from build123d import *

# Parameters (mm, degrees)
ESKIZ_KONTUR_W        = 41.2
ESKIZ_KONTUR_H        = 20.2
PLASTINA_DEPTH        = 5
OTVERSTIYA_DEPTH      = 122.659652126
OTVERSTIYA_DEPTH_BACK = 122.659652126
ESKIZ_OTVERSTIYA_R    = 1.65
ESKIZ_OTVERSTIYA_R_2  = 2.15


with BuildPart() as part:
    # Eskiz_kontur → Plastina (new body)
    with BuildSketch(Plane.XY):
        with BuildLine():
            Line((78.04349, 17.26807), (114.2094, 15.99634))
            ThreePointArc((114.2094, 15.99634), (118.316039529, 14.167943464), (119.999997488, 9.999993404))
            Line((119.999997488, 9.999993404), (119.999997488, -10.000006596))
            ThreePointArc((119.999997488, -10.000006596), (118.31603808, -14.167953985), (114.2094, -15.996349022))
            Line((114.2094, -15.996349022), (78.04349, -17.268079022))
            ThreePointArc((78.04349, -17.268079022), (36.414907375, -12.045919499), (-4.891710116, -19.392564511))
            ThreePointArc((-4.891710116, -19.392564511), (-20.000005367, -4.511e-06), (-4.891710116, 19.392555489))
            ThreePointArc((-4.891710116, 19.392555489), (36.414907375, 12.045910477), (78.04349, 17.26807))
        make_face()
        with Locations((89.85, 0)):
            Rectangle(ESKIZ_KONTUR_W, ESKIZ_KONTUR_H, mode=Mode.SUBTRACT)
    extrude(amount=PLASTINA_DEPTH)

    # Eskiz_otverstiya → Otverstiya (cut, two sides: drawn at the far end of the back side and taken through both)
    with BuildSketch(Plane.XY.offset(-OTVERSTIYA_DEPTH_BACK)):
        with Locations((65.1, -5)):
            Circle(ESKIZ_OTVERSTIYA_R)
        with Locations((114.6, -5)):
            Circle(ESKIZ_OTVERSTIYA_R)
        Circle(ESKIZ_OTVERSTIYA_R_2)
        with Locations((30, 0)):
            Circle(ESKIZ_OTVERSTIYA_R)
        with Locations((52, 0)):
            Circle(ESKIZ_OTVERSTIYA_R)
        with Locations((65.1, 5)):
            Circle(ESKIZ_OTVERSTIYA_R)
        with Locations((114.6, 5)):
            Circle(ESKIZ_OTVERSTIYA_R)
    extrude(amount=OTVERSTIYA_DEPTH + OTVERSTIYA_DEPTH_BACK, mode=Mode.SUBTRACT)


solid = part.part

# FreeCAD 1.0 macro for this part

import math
import FreeCAD as App
import Part
import Sketcher

doc = App.newDocument("Part")
body = doc.addObject("PartDesign::Body", "Body")

sketch1 = body.newObject("Sketcher::SketchObject", "Sketch")
sketch1.AttachmentSupport = (doc.getObject("XY_Plane"), [""])
sketch1.MapMode = "FlatFace"
sketch1.addGeometry([
    Part.LineSegment(App.Vector(114, 16, 0), App.Vector(78, 17, 0)),
    Part.ArcOfCircle(Part.Circle(App.Vector(40, 152, 0), App.Vector(0, 0, 1), 140), math.radians(-109), math.radians(-74)),
    Part.ArcOfCircle(Part.Circle(App.Vector(0, 0, 0), App.Vector(0, 0, 1), 20), math.radians(104), math.radians(256)),
    Part.ArcOfCircle(Part.Circle(App.Vector(40, -152, 0), App.Vector(0, 0, 1), 140), math.radians(74), math.radians(109)),
    Part.LineSegment(App.Vector(78, -17, 0), App.Vector(114, -16, 0)),
    Part.ArcOfCircle(Part.Circle(App.Vector(114, -10, 0), App.Vector(0, 0, 1), 6), math.radians(-88), math.radians(0)),
    Part.LineSegment(App.Vector(120, -10, 0), App.Vector(120, 10, 0)),
    Part.ArcOfCircle(Part.Circle(App.Vector(114, 10, 0), App.Vector(0, 0, 1), 6), math.radians(0), math.radians(88)),
    Part.LineSegment(App.Vector(69, -10, 0), App.Vector(69, 10, 0)),
    Part.LineSegment(App.Vector(69, 10, 0), App.Vector(110, 10, 0)),
    Part.LineSegment(App.Vector(110, 10, 0), App.Vector(110, -10, 0)),
    Part.LineSegment(App.Vector(110, -10, 0), App.Vector(69, -10, 0)),
], False)
sketch1.addConstraint([
    Sketcher.Constraint("Coincident", 0, 2, 1, 2),
    Sketcher.Constraint("Coincident", 1, 1, 2, 1),
    Sketcher.Constraint("Coincident", 2, 2, 3, 2),
    Sketcher.Constraint("Coincident", 3, 1, 4, 1),
    Sketcher.Constraint("Coincident", 4, 2, 5, 1),
    Sketcher.Constraint("Tangent", 5, 2, 6, 1),
    Sketcher.Constraint("Tangent", 6, 2, 7, 1),
    Sketcher.Constraint("Coincident", 7, 2, 0, 1),
    Sketcher.Constraint("Coincident", 8, 2, 9, 1),
    Sketcher.Constraint("Coincident", 9, 2, 10, 1),
    Sketcher.Constraint("Coincident", 10, 2, 11, 1),
    Sketcher.Constraint("Coincident", 11, 2, 8, 1),
    Sketcher.Constraint("Vertical", 6),
    Sketcher.Constraint("Vertical", 8),
    Sketcher.Constraint("Horizontal", 9),
    Sketcher.Constraint("Vertical", 10),
    Sketcher.Constraint("Horizontal", 11),
    Sketcher.Constraint("Coincident", 2, 3, -1, 1),
    Sketcher.Constraint("Equal", 1, 3),
    Sketcher.Constraint("Equal", 5, 7),
    Sketcher.Constraint("Symmetric", 1, 3, 3, 3, -1),
    Sketcher.Constraint("Symmetric", 4, 2, 7, 2, -1),
    Sketcher.Constraint("Vertical", 0, 2, 3, 1),
    Sketcher.Constraint("DistanceY", 6, 1, 6, 2, 20.0),
    Sketcher.Constraint("DistanceX", 9, 1, 9, 2, 41.2),
    Sketcher.Constraint("DistanceY", 8, 1, 8, 2, 20.2),
    Sketcher.Constraint("DistanceX", -1, 1, 1, 3, 40.000001),
    Sketcher.Constraint("DistanceX", -1, 1, 5, 3, 114.0),
    Sketcher.Constraint("DistanceY", 3, 3, 5, 3, 142.0),
    Sketcher.Constraint("DistanceY", -1, 1, 8, 2, 10.1),
    Sketcher.Constraint("DistanceX", -1, 1, 8, 2, 69.25),
    Sketcher.Constraint("Radius", 1, 139.999998),
    Sketcher.Constraint("Radius", 2, 20.000005),
    Sketcher.Constraint("Radius", 5, 5.999998),
    Sketcher.Constraint("DistanceX", -1, 1, 4, 2, 114.2094),
    Sketcher.Constraint("DistanceX", 1, 1, 0, 2, 82.9352),
])
pad1 = body.newObject("PartDesign::Pad", "Pad")
pad1.Profile = sketch1
pad1.Length = 5

sketch2 = body.newObject("Sketcher::SketchObject", "Sketch001")
sketch2.AttachmentSupport = (doc.getObject("XY_Plane"), [""])
sketch2.MapMode = "FlatFace"
sketch2.addGeometry([
    Part.Circle(App.Vector(65.1, -5, 0), App.Vector(0, 0, 1), 1.6),
    Part.Circle(App.Vector(114.6, -5, 0), App.Vector(0, 0, 1), 1.6),
    Part.Circle(App.Vector(0, 0, 0), App.Vector(0, 0, 1), 2.1),
    Part.Circle(App.Vector(30, 0, 0), App.Vector(0, 0, 1), 1.6),
    Part.Circle(App.Vector(52, 0, 0), App.Vector(0, 0, 1), 1.6),
    Part.Circle(App.Vector(65.1, 5, 0), App.Vector(0, 0, 1), 1.6),
    Part.Circle(App.Vector(114.6, 5, 0), App.Vector(0, 0, 1), 1.6),
], False)
sketch2.addConstraint([
    Sketcher.Constraint("Coincident", 2, 3, -1, 1),
    Sketcher.Constraint("Equal", 0, 1),
    Sketcher.Constraint("Equal", 1, 3),
    Sketcher.Constraint("Equal", 3, 4),
    Sketcher.Constraint("Equal", 4, 5),
    Sketcher.Constraint("Equal", 5, 6),
    Sketcher.Constraint("Symmetric", 0, 3, 5, 3, -1),
    Sketcher.Constraint("Symmetric", 1, 3, 6, 3, -1),
    Sketcher.Constraint("PointOnObject", 3, 3, -1),
    Sketcher.Constraint("PointOnObject", 4, 3, -1),
    Sketcher.Constraint("Horizontal", 0, 3, 1, 3),
    Sketcher.Constraint("Diameter", 0, 3.3),
    Sketcher.Constraint("Diameter", 2, 4.3),
    Sketcher.Constraint("DistanceY", 0, 3, -1, 1, 5.0),
    Sketcher.Constraint("DistanceX", -1, 1, 3, 3, 30.0),
    Sketcher.Constraint("DistanceX", -1, 1, 4, 3, 52.0),
    Sketcher.Constraint("DistanceX", -1, 1, 0, 3, 65.1),
    Sketcher.Constraint("DistanceX", -1, 1, 1, 3, 114.6),
])
pocket1 = body.newObject("PartDesign::Pocket", "Pocket")
pocket1.Profile = sketch2
pocket1.Type = "ThroughAll"
pocket1.Midplane = True

doc.recompute()
